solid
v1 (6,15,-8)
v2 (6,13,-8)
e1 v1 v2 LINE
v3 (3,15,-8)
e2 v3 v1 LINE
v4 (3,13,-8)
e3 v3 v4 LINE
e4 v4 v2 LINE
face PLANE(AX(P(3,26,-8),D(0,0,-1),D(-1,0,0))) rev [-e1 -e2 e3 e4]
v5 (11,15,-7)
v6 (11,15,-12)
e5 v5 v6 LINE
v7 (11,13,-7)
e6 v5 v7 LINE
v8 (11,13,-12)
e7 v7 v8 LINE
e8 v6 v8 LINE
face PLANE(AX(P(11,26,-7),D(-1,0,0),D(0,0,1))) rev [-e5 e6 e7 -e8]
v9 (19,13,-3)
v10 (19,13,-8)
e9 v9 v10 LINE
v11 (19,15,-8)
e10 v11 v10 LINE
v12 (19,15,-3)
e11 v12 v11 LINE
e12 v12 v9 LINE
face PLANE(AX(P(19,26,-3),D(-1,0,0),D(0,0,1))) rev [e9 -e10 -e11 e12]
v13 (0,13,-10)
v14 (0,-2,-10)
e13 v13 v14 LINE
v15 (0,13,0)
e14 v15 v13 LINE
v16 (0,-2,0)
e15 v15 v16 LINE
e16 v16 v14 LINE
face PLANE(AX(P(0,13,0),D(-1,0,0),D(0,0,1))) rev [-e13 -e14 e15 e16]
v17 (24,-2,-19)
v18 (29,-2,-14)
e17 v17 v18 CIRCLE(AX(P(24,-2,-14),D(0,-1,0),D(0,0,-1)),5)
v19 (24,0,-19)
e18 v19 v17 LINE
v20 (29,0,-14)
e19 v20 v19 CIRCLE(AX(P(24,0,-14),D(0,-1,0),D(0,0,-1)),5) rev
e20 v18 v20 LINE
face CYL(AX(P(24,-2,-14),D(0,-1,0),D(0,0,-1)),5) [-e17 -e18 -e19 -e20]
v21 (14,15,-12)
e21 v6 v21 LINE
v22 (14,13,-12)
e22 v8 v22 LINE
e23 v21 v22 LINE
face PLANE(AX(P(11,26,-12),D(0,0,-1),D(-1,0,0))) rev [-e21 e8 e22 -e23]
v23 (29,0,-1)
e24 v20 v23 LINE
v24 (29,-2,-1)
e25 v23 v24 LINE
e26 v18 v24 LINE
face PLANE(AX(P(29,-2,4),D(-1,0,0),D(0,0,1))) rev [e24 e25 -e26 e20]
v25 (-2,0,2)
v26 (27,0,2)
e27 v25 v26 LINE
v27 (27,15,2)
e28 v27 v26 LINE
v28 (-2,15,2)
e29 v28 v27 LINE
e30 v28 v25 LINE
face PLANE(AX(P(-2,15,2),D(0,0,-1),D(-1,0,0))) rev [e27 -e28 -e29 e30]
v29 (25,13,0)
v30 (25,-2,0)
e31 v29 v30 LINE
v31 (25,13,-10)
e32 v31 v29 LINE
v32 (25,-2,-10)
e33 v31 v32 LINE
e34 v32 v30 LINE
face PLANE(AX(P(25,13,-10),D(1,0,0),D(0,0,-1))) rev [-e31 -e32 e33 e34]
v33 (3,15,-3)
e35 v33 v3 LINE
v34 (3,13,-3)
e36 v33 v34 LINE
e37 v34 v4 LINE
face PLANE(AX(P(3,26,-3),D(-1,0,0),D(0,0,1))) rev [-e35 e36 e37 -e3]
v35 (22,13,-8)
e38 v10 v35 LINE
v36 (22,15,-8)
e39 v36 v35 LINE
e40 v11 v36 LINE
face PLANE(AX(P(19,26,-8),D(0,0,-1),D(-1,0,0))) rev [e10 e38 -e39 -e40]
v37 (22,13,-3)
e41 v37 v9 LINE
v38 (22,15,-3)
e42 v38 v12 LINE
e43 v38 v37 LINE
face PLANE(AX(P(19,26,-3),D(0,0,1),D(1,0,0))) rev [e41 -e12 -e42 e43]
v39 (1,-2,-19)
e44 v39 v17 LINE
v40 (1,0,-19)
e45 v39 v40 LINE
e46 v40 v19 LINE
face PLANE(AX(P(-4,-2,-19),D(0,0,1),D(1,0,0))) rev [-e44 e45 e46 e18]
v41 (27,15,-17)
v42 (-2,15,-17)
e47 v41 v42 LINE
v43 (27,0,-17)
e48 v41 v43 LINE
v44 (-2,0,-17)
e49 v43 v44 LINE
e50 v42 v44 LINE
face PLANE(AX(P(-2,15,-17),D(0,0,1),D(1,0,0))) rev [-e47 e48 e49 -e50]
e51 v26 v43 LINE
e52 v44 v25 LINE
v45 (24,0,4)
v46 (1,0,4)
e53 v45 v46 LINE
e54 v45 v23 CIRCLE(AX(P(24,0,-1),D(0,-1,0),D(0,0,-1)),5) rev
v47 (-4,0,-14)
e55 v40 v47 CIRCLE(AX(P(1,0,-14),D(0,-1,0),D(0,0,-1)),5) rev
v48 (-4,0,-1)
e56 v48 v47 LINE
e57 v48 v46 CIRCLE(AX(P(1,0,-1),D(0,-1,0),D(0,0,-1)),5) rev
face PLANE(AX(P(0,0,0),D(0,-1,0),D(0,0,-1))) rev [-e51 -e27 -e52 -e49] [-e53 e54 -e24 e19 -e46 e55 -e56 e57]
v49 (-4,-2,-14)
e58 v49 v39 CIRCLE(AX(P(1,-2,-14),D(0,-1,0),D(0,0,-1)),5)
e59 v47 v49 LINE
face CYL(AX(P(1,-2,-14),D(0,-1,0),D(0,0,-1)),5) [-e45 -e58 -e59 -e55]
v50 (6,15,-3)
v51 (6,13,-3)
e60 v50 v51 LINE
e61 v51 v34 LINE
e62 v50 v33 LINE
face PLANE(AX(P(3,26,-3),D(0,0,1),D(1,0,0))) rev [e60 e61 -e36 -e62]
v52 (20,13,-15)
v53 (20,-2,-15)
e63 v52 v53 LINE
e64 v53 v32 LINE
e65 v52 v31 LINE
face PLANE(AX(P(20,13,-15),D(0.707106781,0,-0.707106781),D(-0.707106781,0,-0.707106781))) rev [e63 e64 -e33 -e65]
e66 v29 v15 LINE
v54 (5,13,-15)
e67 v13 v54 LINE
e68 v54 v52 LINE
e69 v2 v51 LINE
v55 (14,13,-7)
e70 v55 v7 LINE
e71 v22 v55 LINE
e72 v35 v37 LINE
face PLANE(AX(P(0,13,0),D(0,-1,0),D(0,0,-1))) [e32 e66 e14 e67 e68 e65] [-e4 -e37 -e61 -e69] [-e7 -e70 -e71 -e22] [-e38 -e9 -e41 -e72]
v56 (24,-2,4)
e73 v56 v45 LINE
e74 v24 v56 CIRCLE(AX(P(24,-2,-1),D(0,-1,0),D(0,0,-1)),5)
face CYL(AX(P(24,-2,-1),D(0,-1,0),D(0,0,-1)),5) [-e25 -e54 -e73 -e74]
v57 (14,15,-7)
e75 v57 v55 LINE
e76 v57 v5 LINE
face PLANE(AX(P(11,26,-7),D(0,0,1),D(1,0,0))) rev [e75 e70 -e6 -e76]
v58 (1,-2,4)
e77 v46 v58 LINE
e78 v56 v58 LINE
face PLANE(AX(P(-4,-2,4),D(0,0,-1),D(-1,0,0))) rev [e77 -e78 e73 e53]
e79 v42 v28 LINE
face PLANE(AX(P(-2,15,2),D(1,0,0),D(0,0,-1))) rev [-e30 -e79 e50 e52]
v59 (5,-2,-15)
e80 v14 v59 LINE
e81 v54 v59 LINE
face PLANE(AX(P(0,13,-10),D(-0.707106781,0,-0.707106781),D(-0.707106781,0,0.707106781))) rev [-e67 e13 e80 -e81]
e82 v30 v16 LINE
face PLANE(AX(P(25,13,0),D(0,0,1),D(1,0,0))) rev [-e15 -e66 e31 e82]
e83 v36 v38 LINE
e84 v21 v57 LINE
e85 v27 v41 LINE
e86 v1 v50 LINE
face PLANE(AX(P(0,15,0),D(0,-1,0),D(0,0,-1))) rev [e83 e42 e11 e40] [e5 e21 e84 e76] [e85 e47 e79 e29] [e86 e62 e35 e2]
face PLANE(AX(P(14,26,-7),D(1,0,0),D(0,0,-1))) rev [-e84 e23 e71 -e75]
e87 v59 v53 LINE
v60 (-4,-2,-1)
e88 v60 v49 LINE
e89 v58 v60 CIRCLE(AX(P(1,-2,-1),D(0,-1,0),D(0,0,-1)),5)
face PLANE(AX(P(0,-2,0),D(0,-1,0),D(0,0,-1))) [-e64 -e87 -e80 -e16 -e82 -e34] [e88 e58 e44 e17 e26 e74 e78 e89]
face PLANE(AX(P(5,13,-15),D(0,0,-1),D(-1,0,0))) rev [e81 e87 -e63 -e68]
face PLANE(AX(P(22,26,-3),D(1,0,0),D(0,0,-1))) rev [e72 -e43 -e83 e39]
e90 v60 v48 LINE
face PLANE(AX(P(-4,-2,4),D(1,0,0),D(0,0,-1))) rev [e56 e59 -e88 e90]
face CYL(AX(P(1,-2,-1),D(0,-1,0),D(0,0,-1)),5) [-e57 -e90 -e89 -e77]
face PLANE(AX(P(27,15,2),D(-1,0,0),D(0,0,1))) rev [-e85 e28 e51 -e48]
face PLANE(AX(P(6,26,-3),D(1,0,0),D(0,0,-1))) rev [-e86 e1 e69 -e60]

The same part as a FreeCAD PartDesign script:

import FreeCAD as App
import Part
import Sketcher
from FreeCAD import Vector
Q = App.Units.Quantity


def edges_at(feature, points):
    """Names of the edges that pass closest to the given points."""
    edges = feature.Shape.Edges
    near = lambda p: min(range(len(edges)), key=lambda i: edges[i].distToShape(Part.Vertex(*p))[0])
    return sorted({f"Edge{near(p) + 1}" for p in points})


def add_polygon(sketch, points):
    """Adds a closed chain of lines whose ends are joined by coincident constraints."""
    first, n = sketch.GeometryCount, len(points)
    for a, b in zip(points, points[1:] + points[:1]):
        sketch.addGeometry(Part.LineSegment(App.Vector(*a, 0), App.Vector(*b, 0)), False)
    for i in range(n):
        sketch.addConstraint(Sketcher.Constraint("Coincident", first + i, 2, first + (i + 1) % n, 1))

doc = App.newDocument("Part")
body = doc.addObject("PartDesign::Body", "Body")

# Sketch on XZ plane
sketch1 = body.newObject("Sketcher::SketchObject", "Sketch")
sketch1.AttachmentSupport = (doc.getObject("XZ_Plane"), [""])
sketch1.MapMode = "FlatFace"
add_polygon(sketch1, [(-2, -17), (-2, 2), (27, 2), (27, -17)])  # lines 0-3
sketch1.addConstraint([
    Sketcher.Constraint("Vertical", 0),
    Sketcher.Constraint("Horizontal", 1),
    Sketcher.Constraint("Vertical", 2),
    Sketcher.Constraint("Horizontal", 3),
    Sketcher.Constraint("DistanceX", 1, 1, 1, 2, Q("29 mm")),
    Sketcher.Constraint("DistanceY", 0, 1, 0, 2, Q("19 mm")),
    Sketcher.Constraint("DistanceX", 0, 2, -1, 1, Q("2 mm")),
    Sketcher.Constraint("DistanceY", -1, 1, 0, 2, Q("2 mm")),
])
pad1 = body.newObject("PartDesign::Pad", "Pad")
pad1.Profile = sketch1
pad1.Length = 15
pad1.Reversed = True

# Sketch on XZ plane
sketch2 = body.newObject("Sketcher::SketchObject", "Sketch001")
sketch2.AttachmentSupport = (doc.getObject("XZ_Plane"), [""])
sketch2.MapMode = "FlatFace"
add_polygon(sketch2, [(0, 0), (0, -10), (5, -15), (20, -15), (25, -10), (25, 0)])  # lines 0-5
sketch2.addConstraint([
    Sketcher.Constraint("Vertical", 0),
    Sketcher.Constraint("Horizontal", 2),
    Sketcher.Constraint("Vertical", 4),
    Sketcher.Constraint("Horizontal", 5),
    Sketcher.Constraint("Coincident", 5, 2, -1, 1),
    Sketcher.Constraint("Perpendicular", 1, 3),
    Sketcher.Constraint("Horizontal", 0, 2, 3, 2),
    Sketcher.Constraint("Equal", 1, 3),
    Sketcher.Constraint("DistanceX", 2, 1, 2, 2, Q("15 mm")),
    Sketcher.Constraint("DistanceX", 5, 2, 5, 1, Q("25 mm")),
    Sketcher.Constraint("DistanceY", 0, 2, 0, 1, Q("10 mm")),
])
pocket1 = body.newObject("PartDesign::Pocket", "Pocket")
pocket1.Profile = sketch2
pocket1.Length = 13

# Sketch on XZ plane
sketch3 = body.newObject("Sketcher::SketchObject", "Sketch002")
sketch3.AttachmentSupport = (doc.getObject("XZ_Plane"), [""])
sketch3.MapMode = "FlatFace"
sketch3.AttachmentOffset = App.Placement(Vector(0, 0, -13), App.Rotation())
add_polygon(sketch3, [(3, -3), (3, -8), (6, -8), (6, -3)])  # lines 0-3
add_polygon(sketch3, [(11, -7), (11, -12), (14, -12), (14, -7)])  # lines 4-7
add_polygon(sketch3, [(19, -3), (19, -8), (22, -8), (22, -3)])  # lines 8-11
sketch3.addConstraint([
    Sketcher.Constraint("Vertical", 0),
    Sketcher.Constraint("Horizontal", 1),
    Sketcher.Constraint("Vertical", 2),
    Sketcher.Constraint("Horizontal", 3),
    Sketcher.Constraint("Vertical", 4),
    Sketcher.Constraint("Horizontal", 5),
    Sketcher.Constraint("Vertical", 6),
    Sketcher.Constraint("Horizontal", 7),
    Sketcher.Constraint("Vertical", 8),
    Sketcher.Constraint("Horizontal", 9),
    Sketcher.Constraint("Vertical", 10),
    Sketcher.Constraint("Horizontal", 11),
    Sketcher.Constraint("Horizontal", 1, 2, 8, 2),
    Sketcher.Constraint("Horizontal", 3, 2, 10, 2),
    Sketcher.Constraint("Equal", 3, 5),
    Sketcher.Constraint("Equal", 7, 9),
    Sketcher.Constraint("Equal", 2, 4),
    Sketcher.Constraint("DistanceX", 1, 1, 1, 2, Q("3 mm")),
    Sketcher.Constraint("DistanceY", 0, 2, 0, 1, Q("5 mm")),
    Sketcher.Constraint("DistanceX", -1, 1, 0, 2, Q("3 mm")),
    Sketcher.Constraint("DistanceY", 0, 2, -1, 1, Q("8 mm")),
    Sketcher.Constraint("DistanceX", -1, 1, 4, 2, Q("11 mm")),
    Sketcher.Constraint("DistanceY", 4, 2, -1, 1, Q("12 mm")),
    Sketcher.Constraint("DistanceX", -1, 1, 8, 2, Q("19 mm")),
])
pocket2 = body.newObject("PartDesign::Pocket", "Pocket001")
pocket2.Profile = sketch3
pocket2.Length = 13

# Sketch on XZ plane
sketch4 = body.newObject("Sketcher::SketchObject", "Sketch003")
sketch4.AttachmentSupport = (doc.getObject("XZ_Plane"), [""])
sketch4.MapMode = "FlatFace"
add_polygon(sketch4, [(-4, 4), (-4, -19), (29, -19), (29, 4)])  # lines 0-3
add_polygon(sketch4, [(0, -10), (0, 0), (25, 0), (25, -10), (20, -15), (5, -15)])  # lines 4-9
sketch4.addConstraint([
    Sketcher.Constraint("Vertical", 0),
    Sketcher.Constraint("Horizontal", 1),
    Sketcher.Constraint("Vertical", 2),
    Sketcher.Constraint("Horizontal", 3),
    Sketcher.Constraint("Vertical", 4),
    Sketcher.Constraint("Horizontal", 5),
    Sketcher.Constraint("Vertical", 6),
    Sketcher.Constraint("Horizontal", 8),
    Sketcher.Constraint("Coincident", 4, 2, -1, 1),
    Sketcher.Constraint("Perpendicular", 7, 9),
    Sketcher.Constraint("Horizontal", 6, 2, 9, 2),
    Sketcher.Constraint("Equal", 7, 9),
    Sketcher.Constraint("DistanceX", 1, 1, 1, 2, Q("33 mm")),
    Sketcher.Constraint("DistanceX", 5, 1, 5, 2, Q("25 mm")),
    Sketcher.Constraint("DistanceX", 8, 2, 8, 1, Q("15 mm")),
    Sketcher.Constraint("DistanceY", 0, 2, 0, 1, Q("23 mm")),
    Sketcher.Constraint("DistanceY", 4, 1, 4, 2, Q("10 mm")),
    Sketcher.Constraint("DistanceX", 0, 2, -1, 1, Q("4 mm")),
    Sketcher.Constraint("DistanceY", 0, 2, -1, 1, Q("19 mm")),
])
pad2 = body.newObject("PartDesign::Pad", "Pad001")
pad2.Profile = sketch4
pad2.Length = 2
doc.recompute()

fillet = body.newObject("PartDesign::Fillet", "Fillet")
fillet.Base = (pad2, edges_at(pad2, [(29, -1, -19)]))
fillet.Radius = 5
doc.recompute()

fillet2 = body.newObject("PartDesign::Fillet", "Fillet001")
fillet2.Base = (fillet, edges_at(fillet, [(29, -1, 4)]))
fillet2.Radius = 5
doc.recompute()

fillet3 = body.newObject("PartDesign::Fillet", "Fillet002")
fillet3.Base = (fillet2, edges_at(fillet2, [(-4, -1, 4)]))
fillet3.Radius = 5
doc.recompute()

fillet4 = body.newObject("PartDesign::Fillet", "Fillet003")
fillet4.Base = (fillet3, edges_at(fillet3, [(-4, -1, -19)]))
fillet4.Radius = 5

doc.recompute()
